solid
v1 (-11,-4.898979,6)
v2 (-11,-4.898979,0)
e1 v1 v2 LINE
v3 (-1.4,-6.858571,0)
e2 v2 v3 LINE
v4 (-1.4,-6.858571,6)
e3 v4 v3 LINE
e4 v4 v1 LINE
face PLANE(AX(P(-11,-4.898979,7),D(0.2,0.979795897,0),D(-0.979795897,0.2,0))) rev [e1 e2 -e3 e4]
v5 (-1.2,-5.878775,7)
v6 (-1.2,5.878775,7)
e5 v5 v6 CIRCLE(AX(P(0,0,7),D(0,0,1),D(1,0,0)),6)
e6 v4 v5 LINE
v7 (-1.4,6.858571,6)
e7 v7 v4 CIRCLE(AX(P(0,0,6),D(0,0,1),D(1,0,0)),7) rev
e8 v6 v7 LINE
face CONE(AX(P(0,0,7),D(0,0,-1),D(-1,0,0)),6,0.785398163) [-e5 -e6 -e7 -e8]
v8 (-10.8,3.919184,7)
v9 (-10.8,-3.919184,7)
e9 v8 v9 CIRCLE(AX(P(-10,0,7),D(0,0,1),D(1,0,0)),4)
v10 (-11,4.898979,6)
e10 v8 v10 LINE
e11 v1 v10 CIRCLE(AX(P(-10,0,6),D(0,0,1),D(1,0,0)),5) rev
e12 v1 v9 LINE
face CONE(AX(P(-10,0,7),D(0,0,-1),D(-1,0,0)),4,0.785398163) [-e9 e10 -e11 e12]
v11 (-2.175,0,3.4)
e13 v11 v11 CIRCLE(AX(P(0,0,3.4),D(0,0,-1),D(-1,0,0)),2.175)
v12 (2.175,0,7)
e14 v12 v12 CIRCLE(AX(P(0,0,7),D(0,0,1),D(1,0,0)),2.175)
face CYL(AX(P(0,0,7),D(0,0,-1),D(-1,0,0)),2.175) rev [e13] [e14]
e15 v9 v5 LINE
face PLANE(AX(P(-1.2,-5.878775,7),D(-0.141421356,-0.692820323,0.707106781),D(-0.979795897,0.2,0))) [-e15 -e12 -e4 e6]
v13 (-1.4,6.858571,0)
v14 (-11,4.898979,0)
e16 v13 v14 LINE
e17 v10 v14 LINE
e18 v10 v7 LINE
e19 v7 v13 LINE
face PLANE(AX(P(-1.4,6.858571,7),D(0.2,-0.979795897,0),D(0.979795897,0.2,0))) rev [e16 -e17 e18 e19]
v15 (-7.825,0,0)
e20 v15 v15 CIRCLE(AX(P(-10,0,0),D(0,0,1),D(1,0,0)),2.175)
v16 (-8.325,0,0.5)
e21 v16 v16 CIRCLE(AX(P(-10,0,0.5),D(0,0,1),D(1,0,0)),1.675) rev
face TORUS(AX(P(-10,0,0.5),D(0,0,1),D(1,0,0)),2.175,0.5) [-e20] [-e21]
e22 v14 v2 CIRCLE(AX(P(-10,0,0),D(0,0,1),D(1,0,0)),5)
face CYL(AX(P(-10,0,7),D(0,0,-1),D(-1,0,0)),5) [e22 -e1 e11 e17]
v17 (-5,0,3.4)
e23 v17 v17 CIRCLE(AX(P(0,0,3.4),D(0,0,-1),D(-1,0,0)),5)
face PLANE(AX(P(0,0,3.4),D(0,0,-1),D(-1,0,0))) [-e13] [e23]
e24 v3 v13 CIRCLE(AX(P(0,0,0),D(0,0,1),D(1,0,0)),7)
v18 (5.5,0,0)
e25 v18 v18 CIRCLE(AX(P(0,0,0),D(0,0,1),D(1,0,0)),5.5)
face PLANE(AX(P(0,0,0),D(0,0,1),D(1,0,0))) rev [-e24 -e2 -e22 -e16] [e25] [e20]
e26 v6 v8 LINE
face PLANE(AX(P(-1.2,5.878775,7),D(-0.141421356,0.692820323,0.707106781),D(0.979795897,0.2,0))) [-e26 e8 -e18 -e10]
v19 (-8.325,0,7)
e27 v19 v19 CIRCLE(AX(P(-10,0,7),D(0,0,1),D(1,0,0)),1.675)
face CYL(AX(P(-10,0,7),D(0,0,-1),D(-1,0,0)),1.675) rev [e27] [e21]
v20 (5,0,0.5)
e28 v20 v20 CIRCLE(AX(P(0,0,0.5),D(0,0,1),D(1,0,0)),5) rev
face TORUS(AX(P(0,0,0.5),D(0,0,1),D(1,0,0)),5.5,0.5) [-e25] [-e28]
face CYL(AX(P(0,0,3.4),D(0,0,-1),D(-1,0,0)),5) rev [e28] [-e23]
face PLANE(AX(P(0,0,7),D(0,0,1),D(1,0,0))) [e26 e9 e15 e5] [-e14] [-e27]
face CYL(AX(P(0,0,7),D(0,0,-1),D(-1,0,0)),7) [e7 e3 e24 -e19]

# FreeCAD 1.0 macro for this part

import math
import FreeCAD as App
import Part
import Sketcher


def edges_at(feature, points):
    """Names of the edges that pass closest to the given points."""
    edges = feature.Shape.Edges
    near = lambda p: min(range(len(edges)), key=lambda i: edges[i].distToShape(Part.Vertex(*p))[0])
    return sorted({f"Edge{near(p) + 1}" for p in points})

doc = App.newDocument("Part")
body = doc.addObject("PartDesign::Body", "Body")

sketch1 = body.newObject("Sketcher::SketchObject", "Sketch")
sketch1.AttachmentSupport = (doc.getObject("XY_Plane"), [""])
sketch1.MapMode = "FlatFace"
sketch1.addGeometry([
    Part.LineSegment(App.Vector(-1.4, 6.9, 0), App.Vector(-11, 4.9, 0)),
    Part.ArcOfCircle(Part.Circle(App.Vector(-10, 0, 0), App.Vector(0, 0, 1), 5), math.radians(102), math.radians(258)),
    Part.LineSegment(App.Vector(-11, -4.9, 0), App.Vector(-1.4, -6.9, 0)),
    Part.ArcOfCircle(Part.Circle(App.Vector(0, 0, 0), App.Vector(0, 0, 1), 7), math.radians(-102), math.radians(102)),
    Part.Circle(App.Vector(-10, 0, 0), App.Vector(0, 0, 1), 1.7),
    Part.Circle(App.Vector(0, 0, 0), App.Vector(0, 0, 1), 2.2),
], False)
sketch1.addConstraint([
    Sketcher.Constraint("Tangent", 0, 2, 1, 1),
    Sketcher.Constraint("Tangent", 1, 2, 2, 1),
    Sketcher.Constraint("Tangent", 2, 2, 3, 1),
    Sketcher.Constraint("Tangent", 3, 2, 0, 1),
    Sketcher.Constraint("Coincident", 3, 3, -1, 1),
    Sketcher.Constraint("Coincident", 5, 3, -1, 1),
    Sketcher.Constraint("Coincident", 4, 3, 1, 3),
    Sketcher.Constraint("PointOnObject", 1, 3, -1),
    Sketcher.Constraint("Radius", 1, 5.0),
    Sketcher.Constraint("Radius", 3, 7.0),
    Sketcher.Constraint("Diameter", 4, 3.35),
    Sketcher.Constraint("Diameter", 5, 4.35),
    Sketcher.Constraint("DistanceX", 1, 3, -1, 1, 10.0),
])
pad1 = body.newObject("PartDesign::Pad", "Pad")
pad1.Profile = sketch1
pad1.Length = 7

sketch2 = body.newObject("Sketcher::SketchObject", "Sketch001")
sketch2.AttachmentSupport = (doc.getObject("XY_Plane"), [""])
sketch2.MapMode = "FlatFace"
sketch2.addGeometry(Part.Circle(App.Vector(0, 0, 0), App.Vector(0, 0, 1), 5), False)
sketch2.addConstraint([
    Sketcher.Constraint("Coincident", 0, 3, -1, 1),
    Sketcher.Constraint("Diameter", 0, 10.0),
])
pocket1 = body.newObject("PartDesign::Pocket", "Pocket")
pocket1.Profile = sketch2
pocket1.Length = 3.4
pocket1.Reversed = True
doc.recompute()

chamfer = body.newObject("PartDesign::Chamfer", "Chamfer")
chamfer.Base = (pocket1, edges_at(pocket1, [
    (-15, 0, 7),
    (-6.2, -5.879, 7),
    (7, 0, 7),
    (-6.2, 5.879, 7),
]))
chamfer.Size = 1
doc.recompute()

fillet = body.newObject("PartDesign::Fillet", "Fillet")
fillet.Base = (chamfer, edges_at(chamfer, [(-11.675, 0, 0), (5, 0, 0)]))
fillet.Radius = 0.5

doc.recompute()
